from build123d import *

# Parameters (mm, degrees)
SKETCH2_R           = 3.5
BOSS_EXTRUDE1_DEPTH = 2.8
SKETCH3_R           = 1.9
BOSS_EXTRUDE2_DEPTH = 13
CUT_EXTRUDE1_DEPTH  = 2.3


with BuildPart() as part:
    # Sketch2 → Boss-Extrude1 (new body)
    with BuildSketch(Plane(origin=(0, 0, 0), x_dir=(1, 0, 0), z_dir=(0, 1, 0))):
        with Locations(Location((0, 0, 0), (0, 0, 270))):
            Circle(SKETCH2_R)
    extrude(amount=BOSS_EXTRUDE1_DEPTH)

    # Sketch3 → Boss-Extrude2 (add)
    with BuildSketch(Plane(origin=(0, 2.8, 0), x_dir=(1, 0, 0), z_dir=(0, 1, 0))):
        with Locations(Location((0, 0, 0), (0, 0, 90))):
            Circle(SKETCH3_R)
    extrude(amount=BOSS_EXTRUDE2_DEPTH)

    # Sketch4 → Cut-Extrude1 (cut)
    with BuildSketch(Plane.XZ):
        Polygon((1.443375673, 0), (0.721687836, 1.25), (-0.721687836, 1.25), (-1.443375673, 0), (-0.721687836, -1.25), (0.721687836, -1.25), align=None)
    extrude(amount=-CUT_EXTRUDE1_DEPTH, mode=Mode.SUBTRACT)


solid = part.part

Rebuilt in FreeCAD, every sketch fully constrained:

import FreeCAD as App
import Part
import Sketcher

V = App.Vector
Q = App.Units.Quantity


def add_polygon(sketch, points):
    """Adds a closed chain of lines whose ends are joined by coincident constraints."""
    first, n = sketch.GeometryCount, len(points)
    for a, b in zip(points, points[1:] + points[:1]):
        sketch.addGeometry(Part.LineSegment(App.Vector(*a, 0), App.Vector(*b, 0)), False)
    for i in range(n):
        sketch.addConstraint(Sketcher.Constraint("Coincident", first + i, 2, first + (i + 1) % n, 1))

doc = App.newDocument("Part")
body = doc.addObject("PartDesign::Body", "Body")

sketch1 = doc.addObject("Sketcher::SketchObject", "Sketch")
body.addObject(sketch1)
sketch1.AttachmentSupport = (doc.XZ_Plane, [""])
sketch1.MapMode = "FlatFace"
sketch1.addGeometry(Part.Circle(V(0, 0, 0), V(0, 0, 1), 3.5), False)
sketch1.addConstraint(Sketcher.Constraint("Coincident", 0, 3, -1, 1))
sketch1.addConstraint(Sketcher.Constraint("Diameter", 0, Q("7 mm")))
pad1 = doc.addObject("PartDesign::Pad", "Pad")
body.addObject(pad1)
pad1.Profile = sketch1
pad1.Length = 2.8
pad1.Reversed = True

sketch2 = doc.addObject("Sketcher::SketchObject", "Sketch001")
body.addObject(sketch2)
sketch2.AttachmentSupport = (doc.XZ_Plane, [""])
sketch2.MapMode = "FlatFace"
sketch2.AttachmentOffset = App.Placement(V(0, 0, -2.8), App.Rotation())
sketch2.addGeometry(Part.Circle(V(0, 0, 0), V(0, 0, 1), 1.9), False)
sketch2.addConstraint(Sketcher.Constraint("Coincident", 0, 3, -1, 1))
sketch2.addConstraint(Sketcher.Constraint("Diameter", 0, Q("3.8 mm")))
pad2 = doc.addObject("PartDesign::Pad", "Pad001")
body.addObject(pad2)
pad2.Profile = sketch2
pad2.Length = 13
pad2.Reversed = True

sketch3 = doc.addObject("Sketcher::SketchObject", "Sketch002")
body.addObject(sketch3)
sketch3.AttachmentSupport = (doc.XZ_Plane, [""])
sketch3.MapMode = "FlatFace"
add_polygon(sketch3, [(1.4, 0), (0.7, 1.2), (-0.7, 1.2), (-1.4, 0), (-0.7, -1.2), (0.7, -1.2)])
sketch3.addConstraint(Sketcher.Constraint("Horizontal", 1))
sketch3.addConstraint(Sketcher.Constraint("Horizontal", 4))
sketch3.addConstraint(Sketcher.Constraint("Symmetric", 0, 2, 3, 2, -1, 1))
sketch3.addConstraint(Sketcher.Constraint("Symmetric", 2, 2, 5, 2, -1, 1))
sketch3.addConstraint(Sketcher.Constraint("PointOnObject", 2, 2, -1))
sketch3.addConstraint(Sketcher.Constraint("Parallel", 2, 5))
sketch3.addConstraint(Sketcher.Constraint("Vertical", 1, 2, 3, 2))
sketch3.addConstraint(Sketcher.Constraint("Angle", 0, Q("120 deg")))
sketch3.addConstraint(Sketcher.Constraint("DistanceY", 3, 2, 1, 2, Q("2.5 mm")))
sketch3.addConstraint(Sketcher.Constraint("DistanceX", 1, 2, 1, 1, Q("1.443376 mm")))
pocket1 = doc.addObject("PartDesign::Pocket", "Pocket")
body.addObject(pocket1)
pocket1.Profile = sketch3
pocket1.Length = 2.3

doc.recompute()
